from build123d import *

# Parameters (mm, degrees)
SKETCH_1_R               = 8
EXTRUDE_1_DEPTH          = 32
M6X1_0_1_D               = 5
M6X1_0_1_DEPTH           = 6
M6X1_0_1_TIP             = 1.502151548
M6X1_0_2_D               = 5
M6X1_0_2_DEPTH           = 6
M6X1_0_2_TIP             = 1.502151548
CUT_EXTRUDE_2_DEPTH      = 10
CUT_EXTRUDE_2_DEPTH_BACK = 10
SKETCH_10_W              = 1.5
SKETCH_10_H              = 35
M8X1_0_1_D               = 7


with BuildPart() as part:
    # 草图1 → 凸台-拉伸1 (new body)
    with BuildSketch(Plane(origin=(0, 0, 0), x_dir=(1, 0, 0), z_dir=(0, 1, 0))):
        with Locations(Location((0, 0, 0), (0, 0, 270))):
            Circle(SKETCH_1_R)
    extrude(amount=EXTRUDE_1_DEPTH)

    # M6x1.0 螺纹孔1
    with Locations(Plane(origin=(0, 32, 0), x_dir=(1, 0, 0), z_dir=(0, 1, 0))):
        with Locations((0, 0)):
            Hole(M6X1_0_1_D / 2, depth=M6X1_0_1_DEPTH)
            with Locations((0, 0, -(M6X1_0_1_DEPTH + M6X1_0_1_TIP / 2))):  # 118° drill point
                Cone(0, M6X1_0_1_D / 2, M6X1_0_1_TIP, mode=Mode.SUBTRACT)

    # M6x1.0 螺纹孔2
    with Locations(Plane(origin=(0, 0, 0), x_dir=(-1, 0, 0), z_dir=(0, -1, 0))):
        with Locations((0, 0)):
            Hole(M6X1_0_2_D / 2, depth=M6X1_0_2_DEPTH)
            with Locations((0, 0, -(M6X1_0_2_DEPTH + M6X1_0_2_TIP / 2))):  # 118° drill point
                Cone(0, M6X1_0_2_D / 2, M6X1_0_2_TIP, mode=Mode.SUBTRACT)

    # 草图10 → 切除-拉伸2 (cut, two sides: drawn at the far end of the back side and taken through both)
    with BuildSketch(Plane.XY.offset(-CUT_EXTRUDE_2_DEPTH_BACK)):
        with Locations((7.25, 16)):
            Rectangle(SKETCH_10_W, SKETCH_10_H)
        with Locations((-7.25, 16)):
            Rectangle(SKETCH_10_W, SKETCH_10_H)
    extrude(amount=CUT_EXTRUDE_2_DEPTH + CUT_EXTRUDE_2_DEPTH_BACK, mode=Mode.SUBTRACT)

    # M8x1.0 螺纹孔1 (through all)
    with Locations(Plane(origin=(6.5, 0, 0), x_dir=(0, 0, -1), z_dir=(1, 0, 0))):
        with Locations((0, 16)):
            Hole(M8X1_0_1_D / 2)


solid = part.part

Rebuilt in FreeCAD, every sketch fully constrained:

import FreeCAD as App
import Part
import Sketcher


def add_polygon(sketch, points):
    """Adds a closed chain of lines whose ends are joined by coincident constraints."""
    first, n = sketch.GeometryCount, len(points)
    for a, b in zip(points, points[1:] + points[:1]):
        sketch.addGeometry(Part.LineSegment(App.Vector(*a, 0), App.Vector(*b, 0)), False)
    for i in range(n):
        sketch.addConstraint(Sketcher.Constraint("Coincident", first + i, 2, first + (i + 1) % n, 1))

doc = App.newDocument("Part")
body = doc.addObject("PartDesign::Body", "Body")

# Sketch on XZ plane
sketch1 = body.newObject("Sketcher::SketchObject", "Sketch")
sketch1.AttachmentSupport = (doc.getObject("XZ_Plane"), [""])
sketch1.MapMode = "FlatFace"
sketch1.addGeometry(Part.Circle(App.Vector(0, 0, 0), App.Vector(0, 0, 1), 8), False)
sketch1.addConstraint(Sketcher.Constraint("Coincident", 0, 3, -1, 1))
sketch1.addConstraint(Sketcher.Constraint("Diameter", 0, 16.0))
pad1 = body.newObject("PartDesign::Pad", "Pad")
pad1.Profile = sketch1
pad1.Length = 32
pad1.Reversed = True

# Sketch on XZ plane
sketch2 = body.newObject("Sketcher::SketchObject", "Sketch001")
sketch2.AttachmentSupport = (doc.getObject("XZ_Plane"), [""])
sketch2.MapMode = "FlatFace"
sketch2.AttachmentOffset = App.Placement(App.Vector(0, 0, -32), App.Rotation())
sketch2.addGeometry(Part.Circle(App.Vector(0, 0, 0), App.Vector(0, 0, 1), 2.5), False)
sketch2.addConstraint(Sketcher.Constraint("Coincident", 0, 3, -1, 1))
sketch2.addConstraint(Sketcher.Constraint("Diameter", 0, 5.0))
doc.recompute()
hole = body.newObject("PartDesign::Hole", "Hole")
hole.Profile = sketch2
hole.ThreadType = "None"
hole.Diameter = 5
hole.DepthType = "Dimension"
hole.Depth = 6
hole.DrillPoint = "Angled"
hole.DrillPointAngle = 118
hole.Reversed = True

# Sketch on XZ plane
sketch3 = body.newObject("Sketcher::SketchObject", "Sketch002")
sketch3.AttachmentSupport = (doc.getObject("XZ_Plane"), [""])
sketch3.MapMode = "FlatFace"
sketch3.addGeometry(Part.Circle(App.Vector(0, 0, 0), App.Vector(0, 0, 1), 2.5), False)
sketch3.addConstraint(Sketcher.Constraint("Coincident", 0, 3, -1, 1))
sketch3.addConstraint(Sketcher.Constraint("Diameter", 0, 5.0))
doc.recompute()
hole2 = body.newObject("PartDesign::Hole", "Hole001")
hole2.Profile = sketch3
hole2.ThreadType = "None"
hole2.Diameter = 5
hole2.DepthType = "Dimension"
hole2.Depth = 6
hole2.DrillPoint = "Angled"
hole2.DrillPointAngle = 118

# Sketch on XY plane
sketch4 = body.newObject("Sketcher::SketchObject", "Sketch003")
sketch4.AttachmentSupport = (doc.getObject("XY_Plane"), [""])
sketch4.MapMode = "FlatFace"
add_polygon(sketch4, [(6.5, 33.5), (6.5, -1.5), (8, -1.5), (8, 33.5)])  # lines 0-3
add_polygon(sketch4, [(-8, 33.5), (-8, -1.5), (-6.5, -1.5), (-6.5, 33.5)])  # lines 4-7
sketch4.addConstraint(Sketcher.Constraint("Vertical", 0))
sketch4.addConstraint(Sketcher.Constraint("Horizontal", 1))
sketch4.addConstraint(Sketcher.Constraint("Vertical", 2))
sketch4.addConstraint(Sketcher.Constraint("Horizontal", 3))
sketch4.addConstraint(Sketcher.Constraint("Vertical", 4))
sketch4.addConstraint(Sketcher.Constraint("Horizontal", 5))
sketch4.addConstraint(Sketcher.Constraint("Vertical", 6))
sketch4.addConstraint(Sketcher.Constraint("Horizontal", 7))
sketch4.addConstraint(Sketcher.Constraint("Symmetric", 1, 2, 4, 2, -2))
sketch4.addConstraint(Sketcher.Constraint("Symmetric", 3, 2, 6, 2, -2))
sketch4.addConstraint(Sketcher.Constraint("DistanceY", 0, 2, 0, 1, 35.0))
sketch4.addConstraint(Sketcher.Constraint("DistanceX", 1, 1, 1, 2, 1.5))
sketch4.addConstraint(Sketcher.Constraint("DistanceX", -1, 1, 1, 2, 8.0))
sketch4.addConstraint(Sketcher.Constraint("DistanceY", 0, 2, -1, 1, 1.5))
pocket1 = body.newObject("PartDesign::Pocket", "Pocket")
pocket1.Profile = sketch4
pocket1.Type = "ThroughAll"
pocket1.Midplane = True

# Sketch on YZ plane
sketch5 = body.newObject("Sketcher::SketchObject", "Sketch004")
sketch5.AttachmentSupport = (doc.getObject("YZ_Plane"), [""])
sketch5.MapMode = "FlatFace"
sketch5.AttachmentOffset = App.Placement(App.Vector(0, 0, 6.5), App.Rotation())
sketch5.addGeometry(Part.Circle(App.Vector(16, 0, 0), App.Vector(0, 0, 1), 3.5), False)
sketch5.addConstraint(Sketcher.Constraint("PointOnObject", 0, 3, -1))
sketch5.addConstraint(Sketcher.Constraint("Diameter", 0, 7.0))
sketch5.addConstraint(Sketcher.Constraint("DistanceX", -1, 1, 0, 3, 16.0))
doc.recompute()
hole3 = body.newObject("PartDesign::Hole", "Hole002")
hole3.Profile = sketch5
hole3.ThreadType = "None"
hole3.Diameter = 7
hole3.DepthType = "ThroughAll"

doc.recompute()
